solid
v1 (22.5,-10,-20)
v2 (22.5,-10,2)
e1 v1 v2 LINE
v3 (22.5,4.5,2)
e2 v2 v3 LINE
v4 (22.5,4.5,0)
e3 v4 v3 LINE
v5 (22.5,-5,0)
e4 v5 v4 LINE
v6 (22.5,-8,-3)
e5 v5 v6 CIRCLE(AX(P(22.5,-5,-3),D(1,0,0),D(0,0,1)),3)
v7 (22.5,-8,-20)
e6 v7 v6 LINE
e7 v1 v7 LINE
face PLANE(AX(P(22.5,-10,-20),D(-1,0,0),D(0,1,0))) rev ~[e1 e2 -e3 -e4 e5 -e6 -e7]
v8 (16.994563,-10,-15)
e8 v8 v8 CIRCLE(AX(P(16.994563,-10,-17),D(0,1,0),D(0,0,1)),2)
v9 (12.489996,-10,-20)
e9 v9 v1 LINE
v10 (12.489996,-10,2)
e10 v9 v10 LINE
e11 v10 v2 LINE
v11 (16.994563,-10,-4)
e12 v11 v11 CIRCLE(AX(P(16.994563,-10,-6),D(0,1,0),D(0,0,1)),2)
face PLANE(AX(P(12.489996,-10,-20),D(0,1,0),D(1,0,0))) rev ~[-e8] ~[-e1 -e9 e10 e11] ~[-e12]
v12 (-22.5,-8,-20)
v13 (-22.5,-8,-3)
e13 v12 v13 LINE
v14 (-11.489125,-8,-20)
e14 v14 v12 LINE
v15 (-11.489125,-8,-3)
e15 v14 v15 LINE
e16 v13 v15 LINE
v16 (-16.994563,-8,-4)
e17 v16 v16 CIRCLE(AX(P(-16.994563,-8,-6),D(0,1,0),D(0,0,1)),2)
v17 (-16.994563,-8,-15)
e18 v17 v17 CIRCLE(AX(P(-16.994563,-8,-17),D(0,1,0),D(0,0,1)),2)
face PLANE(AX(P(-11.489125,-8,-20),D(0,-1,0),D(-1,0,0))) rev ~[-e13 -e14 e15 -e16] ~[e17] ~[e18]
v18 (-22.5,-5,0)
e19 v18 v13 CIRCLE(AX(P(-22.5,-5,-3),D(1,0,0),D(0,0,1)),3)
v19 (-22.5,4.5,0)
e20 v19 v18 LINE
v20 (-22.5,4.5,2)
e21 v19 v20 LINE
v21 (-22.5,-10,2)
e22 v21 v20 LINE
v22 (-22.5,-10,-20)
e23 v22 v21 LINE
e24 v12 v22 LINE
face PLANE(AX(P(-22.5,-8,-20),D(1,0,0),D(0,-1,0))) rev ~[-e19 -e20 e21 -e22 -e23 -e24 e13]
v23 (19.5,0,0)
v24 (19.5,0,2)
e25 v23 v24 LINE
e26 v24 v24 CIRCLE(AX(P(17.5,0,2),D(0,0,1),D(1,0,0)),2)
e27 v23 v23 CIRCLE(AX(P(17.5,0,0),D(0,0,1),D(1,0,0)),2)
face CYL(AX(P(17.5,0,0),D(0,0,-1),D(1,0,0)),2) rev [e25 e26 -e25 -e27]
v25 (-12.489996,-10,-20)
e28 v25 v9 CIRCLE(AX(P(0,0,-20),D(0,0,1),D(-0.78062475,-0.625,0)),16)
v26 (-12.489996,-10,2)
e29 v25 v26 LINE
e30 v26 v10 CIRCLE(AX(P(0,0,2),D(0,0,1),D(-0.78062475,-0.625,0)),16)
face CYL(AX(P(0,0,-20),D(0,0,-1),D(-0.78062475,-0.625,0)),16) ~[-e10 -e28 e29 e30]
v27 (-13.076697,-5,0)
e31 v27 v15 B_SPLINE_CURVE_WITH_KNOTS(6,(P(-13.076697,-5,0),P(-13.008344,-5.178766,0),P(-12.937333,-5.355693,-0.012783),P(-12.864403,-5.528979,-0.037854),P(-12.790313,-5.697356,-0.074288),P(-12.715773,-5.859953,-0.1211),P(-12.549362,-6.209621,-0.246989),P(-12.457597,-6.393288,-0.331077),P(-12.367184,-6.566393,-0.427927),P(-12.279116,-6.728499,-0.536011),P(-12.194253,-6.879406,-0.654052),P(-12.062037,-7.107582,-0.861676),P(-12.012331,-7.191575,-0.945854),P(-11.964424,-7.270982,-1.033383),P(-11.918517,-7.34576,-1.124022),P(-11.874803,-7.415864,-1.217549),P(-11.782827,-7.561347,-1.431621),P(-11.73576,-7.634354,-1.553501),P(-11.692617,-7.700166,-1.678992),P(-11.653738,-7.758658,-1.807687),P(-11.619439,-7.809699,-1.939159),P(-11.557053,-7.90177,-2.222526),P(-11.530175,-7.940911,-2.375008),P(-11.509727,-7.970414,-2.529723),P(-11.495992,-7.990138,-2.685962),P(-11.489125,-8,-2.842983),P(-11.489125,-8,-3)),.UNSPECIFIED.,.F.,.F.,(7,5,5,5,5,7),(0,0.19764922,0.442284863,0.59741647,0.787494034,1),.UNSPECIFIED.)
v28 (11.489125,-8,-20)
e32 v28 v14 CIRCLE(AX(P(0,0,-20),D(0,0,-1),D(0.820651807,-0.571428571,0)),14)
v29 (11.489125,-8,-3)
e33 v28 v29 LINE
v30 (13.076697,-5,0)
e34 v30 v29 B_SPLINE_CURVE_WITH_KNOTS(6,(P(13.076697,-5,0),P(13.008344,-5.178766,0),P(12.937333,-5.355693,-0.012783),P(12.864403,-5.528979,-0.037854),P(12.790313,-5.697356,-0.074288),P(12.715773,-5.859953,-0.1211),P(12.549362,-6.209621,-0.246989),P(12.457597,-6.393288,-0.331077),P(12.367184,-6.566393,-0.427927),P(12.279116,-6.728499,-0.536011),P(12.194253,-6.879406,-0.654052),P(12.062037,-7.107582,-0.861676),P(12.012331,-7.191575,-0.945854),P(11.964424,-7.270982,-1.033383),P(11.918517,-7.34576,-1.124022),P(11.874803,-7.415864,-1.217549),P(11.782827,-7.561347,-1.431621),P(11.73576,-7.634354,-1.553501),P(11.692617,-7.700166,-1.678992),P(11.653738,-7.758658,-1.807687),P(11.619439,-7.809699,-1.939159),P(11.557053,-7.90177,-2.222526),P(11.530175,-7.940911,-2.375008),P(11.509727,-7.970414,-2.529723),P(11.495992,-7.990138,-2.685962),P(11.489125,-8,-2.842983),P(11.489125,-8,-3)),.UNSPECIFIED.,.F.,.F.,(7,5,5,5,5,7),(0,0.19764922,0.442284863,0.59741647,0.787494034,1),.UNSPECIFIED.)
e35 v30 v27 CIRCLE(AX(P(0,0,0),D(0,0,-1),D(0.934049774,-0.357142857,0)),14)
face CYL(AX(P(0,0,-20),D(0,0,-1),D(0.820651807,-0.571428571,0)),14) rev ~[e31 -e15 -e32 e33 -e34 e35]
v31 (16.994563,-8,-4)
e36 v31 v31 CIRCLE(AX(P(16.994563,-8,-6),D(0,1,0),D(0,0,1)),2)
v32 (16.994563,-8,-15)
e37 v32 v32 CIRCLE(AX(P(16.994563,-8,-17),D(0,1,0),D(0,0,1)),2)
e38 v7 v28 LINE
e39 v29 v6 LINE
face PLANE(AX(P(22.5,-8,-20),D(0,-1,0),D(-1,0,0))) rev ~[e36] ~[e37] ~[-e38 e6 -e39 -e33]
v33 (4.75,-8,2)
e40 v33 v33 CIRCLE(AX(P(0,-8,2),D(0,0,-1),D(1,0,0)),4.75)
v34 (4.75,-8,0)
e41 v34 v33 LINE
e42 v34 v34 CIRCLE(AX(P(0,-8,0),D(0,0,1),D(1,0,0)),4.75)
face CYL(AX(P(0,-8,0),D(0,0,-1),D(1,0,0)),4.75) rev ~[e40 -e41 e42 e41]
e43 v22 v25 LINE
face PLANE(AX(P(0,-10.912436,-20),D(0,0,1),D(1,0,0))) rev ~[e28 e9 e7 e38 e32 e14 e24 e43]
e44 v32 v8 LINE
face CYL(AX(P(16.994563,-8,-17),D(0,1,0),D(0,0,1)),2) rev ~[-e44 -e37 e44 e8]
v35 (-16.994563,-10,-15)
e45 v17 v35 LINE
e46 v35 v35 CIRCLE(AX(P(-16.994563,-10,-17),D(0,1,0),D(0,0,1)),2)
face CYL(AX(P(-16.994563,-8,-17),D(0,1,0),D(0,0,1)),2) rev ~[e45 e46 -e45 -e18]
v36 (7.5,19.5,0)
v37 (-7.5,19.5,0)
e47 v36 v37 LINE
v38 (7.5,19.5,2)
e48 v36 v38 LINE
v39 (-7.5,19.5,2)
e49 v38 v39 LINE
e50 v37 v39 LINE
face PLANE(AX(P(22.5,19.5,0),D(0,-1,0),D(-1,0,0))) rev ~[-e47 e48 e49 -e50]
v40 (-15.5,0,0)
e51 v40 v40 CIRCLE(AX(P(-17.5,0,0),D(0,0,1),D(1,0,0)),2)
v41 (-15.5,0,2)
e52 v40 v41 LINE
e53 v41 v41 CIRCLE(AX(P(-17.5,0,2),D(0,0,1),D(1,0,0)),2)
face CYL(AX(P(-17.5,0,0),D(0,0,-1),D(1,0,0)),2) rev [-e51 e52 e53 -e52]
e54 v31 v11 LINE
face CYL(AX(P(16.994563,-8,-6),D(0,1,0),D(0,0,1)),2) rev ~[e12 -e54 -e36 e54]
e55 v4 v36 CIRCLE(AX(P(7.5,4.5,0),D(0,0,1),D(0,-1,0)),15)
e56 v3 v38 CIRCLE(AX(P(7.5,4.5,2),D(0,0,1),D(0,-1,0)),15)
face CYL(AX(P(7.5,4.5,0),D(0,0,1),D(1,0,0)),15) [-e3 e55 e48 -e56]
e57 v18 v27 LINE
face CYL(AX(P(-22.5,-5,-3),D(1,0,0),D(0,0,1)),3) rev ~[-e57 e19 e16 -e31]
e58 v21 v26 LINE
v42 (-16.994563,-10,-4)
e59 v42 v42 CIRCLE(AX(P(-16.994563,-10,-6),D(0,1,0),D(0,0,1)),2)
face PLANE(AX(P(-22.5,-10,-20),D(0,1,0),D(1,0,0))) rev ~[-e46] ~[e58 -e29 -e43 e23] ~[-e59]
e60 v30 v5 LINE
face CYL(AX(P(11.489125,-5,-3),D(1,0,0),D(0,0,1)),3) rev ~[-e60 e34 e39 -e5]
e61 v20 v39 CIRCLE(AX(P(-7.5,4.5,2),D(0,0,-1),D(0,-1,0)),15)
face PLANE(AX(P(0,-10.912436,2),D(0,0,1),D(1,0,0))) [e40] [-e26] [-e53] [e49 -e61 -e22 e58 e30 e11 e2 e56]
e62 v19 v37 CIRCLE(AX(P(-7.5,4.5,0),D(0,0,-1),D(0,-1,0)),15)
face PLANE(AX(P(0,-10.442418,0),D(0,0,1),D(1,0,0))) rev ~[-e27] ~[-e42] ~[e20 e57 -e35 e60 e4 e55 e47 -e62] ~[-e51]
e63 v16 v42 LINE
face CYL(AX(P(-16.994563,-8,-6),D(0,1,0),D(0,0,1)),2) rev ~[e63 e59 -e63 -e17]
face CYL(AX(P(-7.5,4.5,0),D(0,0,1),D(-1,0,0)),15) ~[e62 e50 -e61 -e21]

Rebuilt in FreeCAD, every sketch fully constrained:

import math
import FreeCAD as App
import Part
import Sketcher


def edges_at(feature, points):
    """Names of the edges that pass closest to the given points."""
    edges = feature.Shape.Edges
    near = lambda p: min(range(len(edges)), key=lambda i: edges[i].distToShape(Part.Vertex(*p))[0])
    return sorted({f"Edge{near(p) + 1}" for p in points})

doc = App.newDocument("Part")
body = doc.addObject("PartDesign::Body", "Body")

# Sketch on XY plane
sketch1 = body.newObject("Sketcher::SketchObject", "Sketch")
sketch1.AttachmentSupport = (doc.getObject("XY_Plane"), [""])
sketch1.MapMode = "FlatFace"
sketch1.addGeometry(Part.LineSegment(App.Vector(-22.5, 19.5, 0), App.Vector(-22.5, -8, 0)), False)
sketch1.addGeometry(Part.LineSegment(App.Vector(-22.5, -8, 0), App.Vector(-11.5, -8, 0)), False)
sketch1.addGeometry(Part.ArcOfCircle(Part.Circle(App.Vector(0, 0, 0), App.Vector(0, 0, 1), 14), math.radians(-145), math.radians(-35)), False)
sketch1.addGeometry(Part.LineSegment(App.Vector(11.5, -8, 0), App.Vector(22.5, -8, 0)), False)
sketch1.addGeometry(Part.LineSegment(App.Vector(22.5, -8, 0), App.Vector(22.5, 19.5, 0)), False)
sketch1.addGeometry(Part.LineSegment(App.Vector(22.5, 19.5, 0), App.Vector(-22.5, 19.5, 0)), False)
sketch1.addGeometry(Part.Circle(App.Vector(-17.5, 0, 0), App.Vector(0, 0, 1), 2), False)
sketch1.addGeometry(Part.Circle(App.Vector(17.5, 0, 0), App.Vector(0, 0, 1), 2), False)
sketch1.addGeometry(Part.Circle(App.Vector(0, -8, 0), App.Vector(0, 0, 1), 4.8), False)
sketch1.addConstraint(Sketcher.Constraint("Coincident", 0, 2, 1, 1))
sketch1.addConstraint(Sketcher.Constraint("Coincident", 1, 2, 2, 1))
sketch1.addConstraint(Sketcher.Constraint("Coincident", 2, 2, 3, 1))
sketch1.addConstraint(Sketcher.Constraint("Coincident", 3, 2, 4, 1))
sketch1.addConstraint(Sketcher.Constraint("Coincident", 4, 2, 5, 1))
sketch1.addConstraint(Sketcher.Constraint("Coincident", 5, 2, 0, 1))
sketch1.addConstraint(Sketcher.Constraint("Vertical", 0))
sketch1.addConstraint(Sketcher.Constraint("Horizontal", 1))
sketch1.addConstraint(Sketcher.Constraint("Horizontal", 3))
sketch1.addConstraint(Sketcher.Constraint("Vertical", 4))
sketch1.addConstraint(Sketcher.Constraint("Horizontal", 5))
sketch1.addConstraint(Sketcher.Constraint("Coincident", 2, 3, -1, 1))
sketch1.addConstraint(Sketcher.Constraint("Equal", 6, 7))
sketch1.addConstraint(Sketcher.Constraint("Symmetric", 6, 3, 7, 3, -1, 1))
sketch1.addConstraint(Sketcher.Constraint("Symmetric", 0, 2, 3, 2, -2))
sketch1.addConstraint(Sketcher.Constraint("PointOnObject", 6, 3, -1))
sketch1.addConstraint(Sketcher.Constraint("PointOnObject", 8, 3, -2))
sketch1.addConstraint(Sketcher.Constraint("Horizontal", 8, 3, 0, 2))
sketch1.addConstraint(Sketcher.Constraint("Diameter", 6, 4.0))
sketch1.addConstraint(Sketcher.Constraint("Radius", 2, 14.0))
sketch1.addConstraint(Sketcher.Constraint("Diameter", 8, 9.5))
sketch1.addConstraint(Sketcher.Constraint("DistanceX", 5, 2, 5, 1, 45.0))
sketch1.addConstraint(Sketcher.Constraint("DistanceY", 0, 2, 0, 1, 27.5))
sketch1.addConstraint(Sketcher.Constraint("DistanceY", 8, 3, -1, 1, 8.0))
sketch1.addConstraint(Sketcher.Constraint("DistanceX", 6, 3, 7, 3, 35.0))
pad1 = body.newObject("PartDesign::Pad", "Pad")
pad1.Profile = sketch1
pad1.Length = 2

# Sketch on XY plane
sketch2 = body.newObject("Sketcher::SketchObject", "Sketch001")
sketch2.AttachmentSupport = (doc.getObject("XY_Plane"), [""])
sketch2.MapMode = "FlatFace"
sketch2.AttachmentOffset = App.Placement(App.Vector(0, 0, -20), App.Rotation())
sketch2.addGeometry(Part.LineSegment(App.Vector(-22.5, -8, 0), App.Vector(-22.5, -10, 0)), False)
sketch2.addGeometry(Part.LineSegment(App.Vector(-22.5, -10, 0), App.Vector(-12.5, -10, 0)), False)
sketch2.addGeometry(Part.ArcOfCircle(Part.Circle(App.Vector(0, 0, 0), App.Vector(0, 0, 1), 16), math.radians(-141), math.radians(-39)), False)
sketch2.addGeometry(Part.LineSegment(App.Vector(12.5, -10, 0), App.Vector(22.5, -10, 0)), False)
sketch2.addGeometry(Part.LineSegment(App.Vector(22.5, -10, 0), App.Vector(22.5, -8, 0)), False)
sketch2.addGeometry(Part.LineSegment(App.Vector(22.5, -8, 0), App.Vector(11.5, -8, 0)), False)
sketch2.addGeometry(Part.ArcOfCircle(Part.Circle(App.Vector(0, 0, 0), App.Vector(0, 0, 1), 14), math.radians(-145), math.radians(-35)), False)
sketch2.addGeometry(Part.LineSegment(App.Vector(-11.5, -8, 0), App.Vector(-22.5, -8, 0)), False)
sketch2.addConstraint(Sketcher.Constraint("Coincident", 0, 2, 1, 1))
sketch2.addConstraint(Sketcher.Constraint("Coincident", 1, 2, 2, 1))
sketch2.addConstraint(Sketcher.Constraint("Coincident", 2, 2, 3, 1))
sketch2.addConstraint(Sketcher.Constraint("Coincident", 3, 2, 4, 1))
sketch2.addConstraint(Sketcher.Constraint("Coincident", 4, 2, 5, 1))
sketch2.addConstraint(Sketcher.Constraint("Coincident", 5, 2, 6, 2))
sketch2.addConstraint(Sketcher.Constraint("Coincident", 6, 1, 7, 1))
sketch2.addConstraint(Sketcher.Constraint("Coincident", 7, 2, 0, 1))
sketch2.addConstraint(Sketcher.Constraint("Vertical", 0))
sketch2.addConstraint(Sketcher.Constraint("Horizontal", 1))
sketch2.addConstraint(Sketcher.Constraint("Horizontal", 3))
sketch2.addConstraint(Sketcher.Constraint("Vertical", 4))
sketch2.addConstraint(Sketcher.Constraint("Horizontal", 5))
sketch2.addConstraint(Sketcher.Constraint("Horizontal", 7))
sketch2.addConstraint(Sketcher.Constraint("Coincident", 2, 3, -1, 1))
sketch2.addConstraint(Sketcher.Constraint("Coincident", 6, 3, -1, 1))
sketch2.addConstraint(Sketcher.Constraint("Symmetric", 0, 2, 3, 2, -2))
sketch2.addConstraint(Sketcher.Constraint("Horizontal", 5, 2, 6, 1))
sketch2.addConstraint(Sketcher.Constraint("Radius", 2, 16.0))
sketch2.addConstraint(Sketcher.Constraint("Radius", 6, 14.0))
sketch2.addConstraint(Sketcher.Constraint("DistanceY", 0, 2, 0, 1, 2.0))
sketch2.addConstraint(Sketcher.Constraint("DistanceY", 0, 2, -1, 1, 10.0))
sketch2.addConstraint(Sketcher.Constraint("DistanceX", 0, 2, 3, 2, 45.0))
pad2 = body.newObject("PartDesign::Pad", "Pad001")
pad2.Profile = sketch2
pad2.Length = 22
doc.recompute()

fillet = body.newObject("PartDesign::Fillet", "Fillet")
fillet.Base = (pad2, edges_at(pad2, [(-22.5, 19.5, 1), (22.5, 19.5, 1)]))
fillet.Radius = 15
doc.recompute()

fillet2 = body.newObject("PartDesign::Fillet", "Fillet001")
fillet2.Base = (fillet, edges_at(fillet, [(-16.995, -8, 0), (16.995, -8, 0)]))
fillet2.Radius = 3

# Sketch on XZ plane
sketch3 = body.newObject("Sketcher::SketchObject", "Sketch002")
sketch3.AttachmentSupport = (doc.getObject("XZ_Plane"), [""])
sketch3.MapMode = "FlatFace"
sketch3.AttachmentOffset = App.Placement(App.Vector(0, 0, 8), App.Rotation())
sketch3.addGeometry(Part.Circle(App.Vector(-17, -6, 0), App.Vector(0, 0, 1), 2), False)
sketch3.addGeometry(Part.Circle(App.Vector(-17, -17, 0), App.Vector(0, 0, 1), 2), False)
sketch3.addGeometry(Part.Circle(App.Vector(17, -17, 0), App.Vector(0, 0, 1), 2), False)
sketch3.addGeometry(Part.Circle(App.Vector(17, -6, 0), App.Vector(0, 0, 1), 2), False)
sketch3.addConstraint(Sketcher.Constraint("Equal", 0, 1))
sketch3.addConstraint(Sketcher.Constraint("Equal", 1, 2))
sketch3.addConstraint(Sketcher.Constraint("Equal", 2, 3))
sketch3.addConstraint(Sketcher.Constraint("Symmetric", 1, 3, 2, 3, -2))
sketch3.addConstraint(Sketcher.Constraint("Symmetric", 0, 3, 3, 3, -2))
sketch3.addConstraint(Sketcher.Constraint("Vertical", 0, 3, 1, 3))
sketch3.addConstraint(Sketcher.Constraint("Diameter", 0, 4.0))
sketch3.addConstraint(Sketcher.Constraint("DistanceY", 0, 3, -1, 1, 6.0))
sketch3.addConstraint(Sketcher.Constraint("DistanceY", 1, 3, -1, 1, 17.0))
sketch3.addConstraint(Sketcher.Constraint("DistanceX", 0, 3, -1, 1, 16.994563))
pocket1 = body.newObject("PartDesign::Pocket", "Pocket")
pocket1.Profile = sketch3
pocket1.Length = 21
pocket1.Reversed = True

doc.recompute()
